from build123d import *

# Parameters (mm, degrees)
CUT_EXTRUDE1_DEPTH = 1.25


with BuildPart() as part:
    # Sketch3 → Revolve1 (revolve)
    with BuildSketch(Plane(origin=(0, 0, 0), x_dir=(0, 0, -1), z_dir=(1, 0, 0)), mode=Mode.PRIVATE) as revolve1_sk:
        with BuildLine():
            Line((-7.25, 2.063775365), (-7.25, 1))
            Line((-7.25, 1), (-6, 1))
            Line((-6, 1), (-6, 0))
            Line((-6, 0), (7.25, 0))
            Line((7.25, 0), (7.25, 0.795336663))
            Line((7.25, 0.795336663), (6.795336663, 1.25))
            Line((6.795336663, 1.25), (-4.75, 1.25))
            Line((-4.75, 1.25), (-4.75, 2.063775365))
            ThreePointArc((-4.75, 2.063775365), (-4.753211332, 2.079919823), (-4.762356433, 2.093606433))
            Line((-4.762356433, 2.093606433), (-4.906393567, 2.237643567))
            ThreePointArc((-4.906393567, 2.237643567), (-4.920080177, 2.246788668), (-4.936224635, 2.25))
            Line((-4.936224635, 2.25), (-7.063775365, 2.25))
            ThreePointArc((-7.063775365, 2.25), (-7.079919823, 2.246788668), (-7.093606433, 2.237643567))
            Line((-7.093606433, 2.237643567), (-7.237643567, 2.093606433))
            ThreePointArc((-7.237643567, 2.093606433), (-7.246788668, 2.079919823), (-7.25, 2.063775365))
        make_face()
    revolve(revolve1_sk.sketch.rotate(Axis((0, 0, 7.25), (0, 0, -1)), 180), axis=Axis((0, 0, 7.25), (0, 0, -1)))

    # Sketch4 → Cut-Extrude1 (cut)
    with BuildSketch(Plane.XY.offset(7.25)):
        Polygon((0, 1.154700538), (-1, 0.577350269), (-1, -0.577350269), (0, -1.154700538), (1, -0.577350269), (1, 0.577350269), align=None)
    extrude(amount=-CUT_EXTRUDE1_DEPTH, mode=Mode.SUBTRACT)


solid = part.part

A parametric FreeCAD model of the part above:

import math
import FreeCAD as App
import Part
import Sketcher

V = App.Vector
Q = App.Units.Quantity

doc = App.newDocument("Part")
body = doc.addObject("PartDesign::Body", "Body")

sketch1 = body.newObject("Sketcher::SketchObject", "Sketch")
sketch1.AttachmentSupport = (doc.getObject("YZ_Plane"), [""])
sketch1.MapMode = "FlatFace"
sketch1.addGeometry([
    Part.LineSegment(V(2.064, 7.25, 0), V(1, 7.25, 0)),
    Part.LineSegment(V(1, 7.25, 0), V(1, 6, 0)),
    Part.LineSegment(V(1, 6, 0), V(0, 6, 0)),
    Part.LineSegment(V(0, 6, 0), V(0, -7.25, 0)),
    Part.LineSegment(V(0, -7.25, 0), V(0.795, -7.25, 0)),
    Part.LineSegment(V(0.795, -7.25, 0), V(1.25, -6.795, 0)),
    Part.LineSegment(V(1.25, -6.795, 0), V(1.25, 4.75, 0)),
    Part.LineSegment(V(1.25, 4.75, 0), V(2.064, 4.75, 0)),
    Part.ArcOfCircle(Part.Circle(V(2.064, 4.792, 0), V(0, 0, 1), 0.042), math.radians(-90), math.radians(-45)),
    Part.LineSegment(V(2.094, 4.762, 0), V(2.238, 4.906, 0)),
    Part.ArcOfCircle(Part.Circle(V(2.208, 4.936, 0), V(0, 0, 1), 0.042), math.radians(-45), math.radians(0)),
    Part.LineSegment(V(2.25, 4.936, 0), V(2.25, 7.064, 0)),
    Part.ArcOfCircle(Part.Circle(V(2.208, 7.064, 0), V(0, 0, 1), 0.042), math.radians(0), math.radians(45)),
    Part.LineSegment(V(2.238, 7.094, 0), V(2.094, 7.238, 0)),
    Part.ArcOfCircle(Part.Circle(V(2.064, 7.208, 0), V(0, 0, 1), 0.042), math.radians(45), math.radians(90)),
], False)
sketch1.addConstraint([
    Sketcher.Constraint("Coincident", 0, 2, 1, 1),
    Sketcher.Constraint("Coincident", 1, 2, 2, 1),
    Sketcher.Constraint("Coincident", 2, 2, 3, 1),
    Sketcher.Constraint("Coincident", 3, 2, 4, 1),
    Sketcher.Constraint("Coincident", 4, 2, 5, 1),
    Sketcher.Constraint("Coincident", 5, 2, 6, 1),
    Sketcher.Constraint("Coincident", 6, 2, 7, 1),
    Sketcher.Constraint("Tangent", 7, 2, 8, 1),
    Sketcher.Constraint("Tangent", 8, 2, 9, 1),
    Sketcher.Constraint("Tangent", 9, 2, 10, 1),
    Sketcher.Constraint("Tangent", 10, 2, 11, 1),
    Sketcher.Constraint("Tangent", 11, 2, 12, 1),
    Sketcher.Constraint("Tangent", 12, 2, 13, 1),
    Sketcher.Constraint("Tangent", 13, 2, 14, 1),
    Sketcher.Constraint("Tangent", 14, 2, 0, 1),
    Sketcher.Constraint("Horizontal", 0),
    Sketcher.Constraint("Vertical", 1),
    Sketcher.Constraint("Horizontal", 2),
    Sketcher.Constraint("Vertical", 3),
    Sketcher.Constraint("Horizontal", 4),
    Sketcher.Constraint("Vertical", 6),
    Sketcher.Constraint("Horizontal", 7),
    Sketcher.Constraint("Vertical", 11),
    Sketcher.Constraint("Equal", 8, 10),
    Sketcher.Constraint("Equal", 10, 12),
    Sketcher.Constraint("Equal", 12, 14),
    Sketcher.Constraint("PointOnObject", 2, 2, -2),
    Sketcher.Constraint("Parallel", 5, 9),
    Sketcher.Constraint("Perpendicular", 9, 13),
    Sketcher.Constraint("Vertical", 8, 3, 14, 3),
    Sketcher.Constraint("Vertical", 9, 2, 12, 2),
    Sketcher.Constraint("DistanceX", 2, 2, 2, 1, 1.0),
    Sketcher.Constraint("DistanceY", -1, 1, 1, 2, 6.0),
    Sketcher.Constraint("DistanceY", 1, 2, 1, 1, 1.25),
    Sketcher.Constraint("DistanceY", 3, 2, 3, 1, 13.25),
    Sketcher.Constraint("DistanceX", -1, 1, 5, 2, 1.25),
    Sketcher.Constraint("DistanceY", -1, 1, 6, 2, 4.75),
    Sketcher.Constraint("DistanceX", -1, 1, 10, 2, 2.25),
    Sketcher.Constraint("Radius", 8, 0.042187),
    Sketcher.Constraint("Distance", 9, 0.203699),
    Sketcher.Constraint("Distance", 5, 0.642991),
])
revolution = body.newObject("PartDesign::Revolution", "Revolution")
revolution.Profile = sketch1
revolution.ReferenceAxis = (sketch1, ["V_Axis"])
revolution.Angle = 360

sketch2 = body.newObject("Sketcher::SketchObject", "Sketch001")
sketch2.AttachmentSupport = (doc.getObject("XY_Plane"), [""])
sketch2.MapMode = "FlatFace"
sketch2.AttachmentOffset = App.Placement(V(0, 0, 7.25), App.Rotation())
sketch2.addGeometry([
    Part.LineSegment(V(0, 1.2, 0), V(-1, 0.6, 0)),
    Part.LineSegment(V(-1, 0.6, 0), V(-1, -0.6, 0)),
    Part.LineSegment(V(-1, -0.6, 0), V(0, -1.2, 0)),
    Part.LineSegment(V(0, -1.2, 0), V(1, -0.6, 0)),
    Part.LineSegment(V(1, -0.6, 0), V(1, 0.6, 0)),
    Part.LineSegment(V(1, 0.6, 0), V(0, 1.2, 0)),
], False)
sketch2.addConstraint([
    Sketcher.Constraint("Coincident", 0, 2, 1, 1),
    Sketcher.Constraint("Coincident", 1, 2, 2, 1),
    Sketcher.Constraint("Coincident", 2, 2, 3, 1),
    Sketcher.Constraint("Coincident", 3, 2, 4, 1),
    Sketcher.Constraint("Coincident", 4, 2, 5, 1),
    Sketcher.Constraint("Coincident", 5, 2, 0, 1),
    Sketcher.Constraint("Vertical", 1),
    Sketcher.Constraint("Vertical", 4),
    Sketcher.Constraint("Symmetric", 0, 2, 3, 2, -1, 1),
    Sketcher.Constraint("Symmetric", 2, 2, 5, 2, -1, 1),
    Sketcher.Constraint("PointOnObject", 2, 2, -2),
    Sketcher.Constraint("Parallel", 2, 5),
    Sketcher.Constraint("Horizontal", 1, 2, 3, 2),
    Sketcher.Constraint("Angle", 0, Q("-150 deg")),
    Sketcher.Constraint("DistanceX", 0, 2, -1, 1, 1.0),
    Sketcher.Constraint("DistanceY", 1, 2, 1, 1, 1.154701),
])
pocket1 = body.newObject("PartDesign::Pocket", "Pocket")
pocket1.Profile = sketch2
pocket1.Length = 1.25

doc.recompute()
